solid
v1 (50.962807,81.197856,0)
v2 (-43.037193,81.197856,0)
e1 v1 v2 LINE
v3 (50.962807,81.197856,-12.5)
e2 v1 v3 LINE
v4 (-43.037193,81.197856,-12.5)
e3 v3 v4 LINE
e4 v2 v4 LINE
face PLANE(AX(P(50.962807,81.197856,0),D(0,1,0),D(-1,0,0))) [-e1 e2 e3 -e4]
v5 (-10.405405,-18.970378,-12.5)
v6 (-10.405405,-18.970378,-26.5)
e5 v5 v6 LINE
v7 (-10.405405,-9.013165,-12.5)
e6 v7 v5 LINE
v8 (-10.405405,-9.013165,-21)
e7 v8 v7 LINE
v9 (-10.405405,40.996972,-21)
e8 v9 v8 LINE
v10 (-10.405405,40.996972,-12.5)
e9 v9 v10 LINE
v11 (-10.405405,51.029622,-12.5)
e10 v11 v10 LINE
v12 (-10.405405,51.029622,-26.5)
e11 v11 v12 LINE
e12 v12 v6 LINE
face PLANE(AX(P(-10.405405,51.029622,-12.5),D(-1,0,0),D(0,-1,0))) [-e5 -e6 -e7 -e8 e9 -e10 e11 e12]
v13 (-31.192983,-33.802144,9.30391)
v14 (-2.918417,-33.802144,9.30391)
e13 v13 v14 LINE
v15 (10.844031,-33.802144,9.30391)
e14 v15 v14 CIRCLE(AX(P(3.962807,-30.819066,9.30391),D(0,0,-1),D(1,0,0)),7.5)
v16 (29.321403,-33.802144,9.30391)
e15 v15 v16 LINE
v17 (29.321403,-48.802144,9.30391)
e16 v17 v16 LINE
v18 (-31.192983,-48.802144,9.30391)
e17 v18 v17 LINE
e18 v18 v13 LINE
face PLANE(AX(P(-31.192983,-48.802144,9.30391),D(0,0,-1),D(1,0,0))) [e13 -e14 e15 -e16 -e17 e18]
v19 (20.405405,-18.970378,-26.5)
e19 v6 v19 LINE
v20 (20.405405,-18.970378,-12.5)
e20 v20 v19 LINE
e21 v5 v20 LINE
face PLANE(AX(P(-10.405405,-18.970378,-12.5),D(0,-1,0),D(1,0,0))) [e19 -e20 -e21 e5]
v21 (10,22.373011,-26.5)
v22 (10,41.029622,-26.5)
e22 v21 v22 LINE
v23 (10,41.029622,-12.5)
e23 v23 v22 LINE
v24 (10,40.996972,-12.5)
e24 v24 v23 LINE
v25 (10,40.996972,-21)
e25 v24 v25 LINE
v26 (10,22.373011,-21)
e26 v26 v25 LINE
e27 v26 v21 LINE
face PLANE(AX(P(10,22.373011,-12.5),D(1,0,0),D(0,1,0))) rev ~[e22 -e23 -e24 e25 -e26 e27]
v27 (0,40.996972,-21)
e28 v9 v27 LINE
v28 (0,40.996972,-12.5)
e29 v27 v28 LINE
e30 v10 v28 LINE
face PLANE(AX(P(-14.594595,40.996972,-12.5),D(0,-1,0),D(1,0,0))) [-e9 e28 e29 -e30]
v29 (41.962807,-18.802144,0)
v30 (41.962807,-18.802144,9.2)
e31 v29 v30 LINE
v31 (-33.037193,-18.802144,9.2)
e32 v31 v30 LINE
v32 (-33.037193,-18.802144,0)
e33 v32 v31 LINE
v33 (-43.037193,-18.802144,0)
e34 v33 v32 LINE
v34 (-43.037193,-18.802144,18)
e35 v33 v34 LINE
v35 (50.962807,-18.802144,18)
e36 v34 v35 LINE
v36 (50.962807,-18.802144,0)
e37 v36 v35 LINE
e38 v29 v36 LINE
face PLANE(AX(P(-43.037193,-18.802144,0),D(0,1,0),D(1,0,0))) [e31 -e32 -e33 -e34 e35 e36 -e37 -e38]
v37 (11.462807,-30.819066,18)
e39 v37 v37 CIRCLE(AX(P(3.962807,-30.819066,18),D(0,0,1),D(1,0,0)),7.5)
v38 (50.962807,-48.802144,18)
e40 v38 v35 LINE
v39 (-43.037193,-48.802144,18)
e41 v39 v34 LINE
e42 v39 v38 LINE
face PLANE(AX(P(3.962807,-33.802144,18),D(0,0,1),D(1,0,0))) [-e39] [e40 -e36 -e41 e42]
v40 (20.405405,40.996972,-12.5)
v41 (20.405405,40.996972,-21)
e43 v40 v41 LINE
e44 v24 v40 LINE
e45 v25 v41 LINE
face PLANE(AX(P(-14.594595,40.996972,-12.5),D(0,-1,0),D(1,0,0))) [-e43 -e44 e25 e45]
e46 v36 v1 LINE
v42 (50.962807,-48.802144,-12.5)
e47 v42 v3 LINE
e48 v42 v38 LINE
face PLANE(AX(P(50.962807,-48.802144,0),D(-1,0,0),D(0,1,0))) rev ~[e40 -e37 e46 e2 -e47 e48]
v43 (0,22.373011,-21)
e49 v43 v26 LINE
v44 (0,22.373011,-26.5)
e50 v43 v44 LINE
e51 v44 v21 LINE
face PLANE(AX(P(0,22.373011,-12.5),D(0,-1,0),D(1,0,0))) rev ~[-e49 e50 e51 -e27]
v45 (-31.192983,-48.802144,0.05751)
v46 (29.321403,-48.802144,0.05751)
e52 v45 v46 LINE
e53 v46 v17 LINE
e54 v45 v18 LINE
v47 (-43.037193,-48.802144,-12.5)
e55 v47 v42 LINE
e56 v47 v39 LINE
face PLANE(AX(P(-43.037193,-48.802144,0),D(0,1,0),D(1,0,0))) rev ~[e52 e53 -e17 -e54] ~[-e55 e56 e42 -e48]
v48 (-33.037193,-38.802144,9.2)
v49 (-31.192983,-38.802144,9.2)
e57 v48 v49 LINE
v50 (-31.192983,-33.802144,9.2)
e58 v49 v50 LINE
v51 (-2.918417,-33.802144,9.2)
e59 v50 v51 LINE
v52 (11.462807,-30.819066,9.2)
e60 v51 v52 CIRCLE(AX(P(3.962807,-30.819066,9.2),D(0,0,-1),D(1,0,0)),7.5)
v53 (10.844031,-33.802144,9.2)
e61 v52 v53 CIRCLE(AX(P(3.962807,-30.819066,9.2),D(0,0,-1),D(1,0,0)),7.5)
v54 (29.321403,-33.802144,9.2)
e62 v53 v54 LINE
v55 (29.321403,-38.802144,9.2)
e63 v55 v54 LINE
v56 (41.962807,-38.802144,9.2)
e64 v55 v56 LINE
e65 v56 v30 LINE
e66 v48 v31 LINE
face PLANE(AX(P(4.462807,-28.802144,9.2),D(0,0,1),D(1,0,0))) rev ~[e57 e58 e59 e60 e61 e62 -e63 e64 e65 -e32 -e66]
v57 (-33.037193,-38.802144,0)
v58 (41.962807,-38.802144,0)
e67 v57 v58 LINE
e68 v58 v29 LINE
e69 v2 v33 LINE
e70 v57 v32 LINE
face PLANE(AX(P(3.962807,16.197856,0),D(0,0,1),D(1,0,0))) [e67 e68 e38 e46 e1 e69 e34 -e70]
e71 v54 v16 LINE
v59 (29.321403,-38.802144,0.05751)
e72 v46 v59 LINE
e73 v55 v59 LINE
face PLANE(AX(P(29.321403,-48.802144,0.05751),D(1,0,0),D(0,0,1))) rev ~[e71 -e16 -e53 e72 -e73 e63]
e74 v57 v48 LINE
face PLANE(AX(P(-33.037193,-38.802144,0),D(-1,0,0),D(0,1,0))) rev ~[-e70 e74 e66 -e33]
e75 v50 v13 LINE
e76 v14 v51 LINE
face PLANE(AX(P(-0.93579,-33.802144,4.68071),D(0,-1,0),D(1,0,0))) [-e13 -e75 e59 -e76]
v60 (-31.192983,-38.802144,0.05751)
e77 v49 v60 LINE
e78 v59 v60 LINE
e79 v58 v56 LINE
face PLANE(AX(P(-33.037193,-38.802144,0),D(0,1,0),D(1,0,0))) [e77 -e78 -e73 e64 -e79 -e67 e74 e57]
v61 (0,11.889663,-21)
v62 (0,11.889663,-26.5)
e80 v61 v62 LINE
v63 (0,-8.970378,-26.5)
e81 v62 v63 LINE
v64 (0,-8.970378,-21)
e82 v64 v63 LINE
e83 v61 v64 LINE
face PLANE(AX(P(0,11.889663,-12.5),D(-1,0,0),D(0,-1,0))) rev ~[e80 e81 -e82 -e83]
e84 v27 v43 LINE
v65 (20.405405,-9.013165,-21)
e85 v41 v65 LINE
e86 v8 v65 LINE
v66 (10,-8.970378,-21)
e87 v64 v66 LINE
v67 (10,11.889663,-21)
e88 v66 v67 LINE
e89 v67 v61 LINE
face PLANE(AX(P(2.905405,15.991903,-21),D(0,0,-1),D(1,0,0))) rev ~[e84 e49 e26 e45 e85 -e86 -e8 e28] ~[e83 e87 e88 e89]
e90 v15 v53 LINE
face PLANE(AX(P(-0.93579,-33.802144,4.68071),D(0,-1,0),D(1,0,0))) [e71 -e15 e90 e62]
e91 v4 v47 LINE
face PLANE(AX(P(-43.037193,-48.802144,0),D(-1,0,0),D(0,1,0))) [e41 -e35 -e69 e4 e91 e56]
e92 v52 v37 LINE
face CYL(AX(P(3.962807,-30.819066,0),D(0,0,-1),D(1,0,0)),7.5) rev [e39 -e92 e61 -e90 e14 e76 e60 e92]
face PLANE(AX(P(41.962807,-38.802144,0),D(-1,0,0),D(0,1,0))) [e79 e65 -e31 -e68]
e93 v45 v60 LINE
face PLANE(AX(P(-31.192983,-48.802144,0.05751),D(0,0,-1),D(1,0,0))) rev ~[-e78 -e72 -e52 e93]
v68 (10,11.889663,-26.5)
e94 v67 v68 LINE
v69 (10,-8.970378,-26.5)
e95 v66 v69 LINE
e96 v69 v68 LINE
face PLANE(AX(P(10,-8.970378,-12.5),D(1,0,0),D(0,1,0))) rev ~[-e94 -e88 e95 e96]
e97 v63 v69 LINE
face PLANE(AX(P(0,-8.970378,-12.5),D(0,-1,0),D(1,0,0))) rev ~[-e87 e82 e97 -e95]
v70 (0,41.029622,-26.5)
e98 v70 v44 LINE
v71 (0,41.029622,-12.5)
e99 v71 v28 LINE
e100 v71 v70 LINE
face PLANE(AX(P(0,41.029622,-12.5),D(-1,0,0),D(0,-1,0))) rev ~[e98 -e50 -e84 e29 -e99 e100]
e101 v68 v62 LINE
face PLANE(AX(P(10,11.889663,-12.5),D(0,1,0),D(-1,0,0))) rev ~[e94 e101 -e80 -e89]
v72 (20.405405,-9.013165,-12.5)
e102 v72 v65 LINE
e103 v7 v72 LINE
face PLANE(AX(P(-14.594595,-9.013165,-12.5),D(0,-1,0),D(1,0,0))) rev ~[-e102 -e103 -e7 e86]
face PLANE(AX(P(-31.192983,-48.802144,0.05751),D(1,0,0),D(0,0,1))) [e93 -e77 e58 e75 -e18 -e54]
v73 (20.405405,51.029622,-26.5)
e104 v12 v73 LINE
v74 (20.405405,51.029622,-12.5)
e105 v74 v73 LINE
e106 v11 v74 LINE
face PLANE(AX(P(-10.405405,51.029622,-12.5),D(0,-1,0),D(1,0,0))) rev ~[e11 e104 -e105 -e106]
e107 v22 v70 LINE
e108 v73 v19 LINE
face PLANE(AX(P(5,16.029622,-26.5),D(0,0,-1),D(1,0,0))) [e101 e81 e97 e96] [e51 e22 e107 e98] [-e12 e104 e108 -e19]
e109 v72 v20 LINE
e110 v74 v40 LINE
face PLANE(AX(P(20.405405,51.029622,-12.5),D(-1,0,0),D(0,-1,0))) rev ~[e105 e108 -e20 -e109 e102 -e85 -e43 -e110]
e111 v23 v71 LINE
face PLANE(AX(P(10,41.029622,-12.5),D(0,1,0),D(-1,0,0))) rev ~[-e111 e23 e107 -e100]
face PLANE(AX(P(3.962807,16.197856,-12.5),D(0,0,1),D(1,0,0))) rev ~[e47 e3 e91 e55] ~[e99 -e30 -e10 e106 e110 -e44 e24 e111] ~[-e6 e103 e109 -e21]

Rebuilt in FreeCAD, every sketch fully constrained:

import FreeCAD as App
import Part
import Sketcher
from FreeCAD import Vector

doc = App.newDocument("Part")
body = doc.addObject("PartDesign::Body", "Body")

# Sketch on XY plane
sketch1 = body.newObject("Sketcher::SketchObject", "Sketch")
sketch1.AttachmentSupport = (doc.getObject("XY_Plane"), [""])
sketch1.MapMode = "FlatFace"
sketch1.addGeometry([
    Part.LineSegment(Vector(51, 81, 0), Vector(-43, 81, 0)),
    Part.LineSegment(Vector(-43, 81, 0), Vector(-43, -49, 0)),
    Part.LineSegment(Vector(-43, -49, 0), Vector(51, -49, 0)),
    Part.LineSegment(Vector(51, -49, 0), Vector(51, 81, 0)),
], False)
sketch1.addConstraint([
    Sketcher.Constraint("Coincident", 0, 2, 1, 1),
    Sketcher.Constraint("Coincident", 1, 2, 2, 1),
    Sketcher.Constraint("Coincident", 2, 2, 3, 1),
    Sketcher.Constraint("Coincident", 3, 2, 0, 1),
    Sketcher.Constraint("Horizontal", 0),
    Sketcher.Constraint("Vertical", 1),
    Sketcher.Constraint("Horizontal", 2),
    Sketcher.Constraint("Vertical", 3),
    Sketcher.Constraint("DistanceX", 0, 2, 0, 1, 94.0),
    Sketcher.Constraint("DistanceY", 1, 2, 1, 1, 130.0),
    Sketcher.Constraint("DistanceX", 0, 2, -1, 1, 43.037193),
    Sketcher.Constraint("DistanceY", -1, 1, 0, 2, 81.197856),
])
pad1 = body.newObject("PartDesign::Pad", "Pad")
pad1.Profile = sketch1
pad1.Length = 12.5
pad1.Reversed = True

# Sketch on XY plane
sketch2 = body.newObject("Sketcher::SketchObject", "Sketch001")
sketch2.AttachmentSupport = (doc.getObject("XY_Plane"), [""])
sketch2.MapMode = "FlatFace"
sketch2.addGeometry([
    Part.LineSegment(Vector(-43, -19, 0), Vector(-43, -49, 0)),  # 0
    Part.LineSegment(Vector(-43, -49, 0), Vector(51, -49, 0)),  # 1
    Part.LineSegment(Vector(51, -49, 0), Vector(51, -19, 0)),  # 2
    Part.LineSegment(Vector(51, -19, 0), Vector(-43, -19, 0)),  # 3
    Part.Circle(Vector(4, -31, 0), Vector(0, 0, 1), 8),  # 4
], False)
sketch2.addConstraint([
    Sketcher.Constraint("Coincident", 0, 2, 1, 1),
    Sketcher.Constraint("Coincident", 1, 2, 2, 1),
    Sketcher.Constraint("Coincident", 2, 2, 3, 1),
    Sketcher.Constraint("Coincident", 3, 2, 0, 1),
    Sketcher.Constraint("Vertical", 0),
    Sketcher.Constraint("Horizontal", 1),
    Sketcher.Constraint("Vertical", 2),
    Sketcher.Constraint("Horizontal", 3),
    Sketcher.Constraint("Diameter", 4, 15.0),
    Sketcher.Constraint("DistanceX", 1, 1, 1, 2, 94.0),
    Sketcher.Constraint("DistanceY", 0, 2, 0, 1, 30.0),
    Sketcher.Constraint("DistanceX", 0, 2, 4, 3, 47.0),
    Sketcher.Constraint("DistanceX", -1, 1, 4, 3, 3.962807),
    Sketcher.Constraint("DistanceY", 4, 3, -1, 1, 30.819066),
    Sketcher.Constraint("DistanceY", 0, 2, -1, 1, 48.802144),
])
pad2 = body.newObject("PartDesign::Pad", "Pad001")
pad2.Profile = sketch2
pad2.Length = 18

# Sketch on XY plane
sketch3 = body.newObject("Sketcher::SketchObject", "Sketch002")
sketch3.AttachmentSupport = (doc.getObject("XY_Plane"), [""])
sketch3.MapMode = "FlatFace"
sketch3.addGeometry([
    Part.LineSegment(Vector(-33, -19, 0), Vector(-33, -39, 0)),
    Part.LineSegment(Vector(-33, -39, 0), Vector(42, -39, 0)),
    Part.LineSegment(Vector(42, -39, 0), Vector(42, -19, 0)),
    Part.LineSegment(Vector(42, -19, 0), Vector(-33, -19, 0)),
], False)
sketch3.addConstraint([
    Sketcher.Constraint("Coincident", 0, 2, 1, 1),
    Sketcher.Constraint("Coincident", 1, 2, 2, 1),
    Sketcher.Constraint("Coincident", 2, 2, 3, 1),
    Sketcher.Constraint("Coincident", 3, 2, 0, 1),
    Sketcher.Constraint("Vertical", 0),
    Sketcher.Constraint("Horizontal", 1),
    Sketcher.Constraint("Vertical", 2),
    Sketcher.Constraint("Horizontal", 3),
    Sketcher.Constraint("DistanceX", 1, 1, 1, 2, 75.0),
    Sketcher.Constraint("DistanceY", 0, 2, 0, 1, 20.0),
    Sketcher.Constraint("DistanceX", 0, 2, -1, 1, 33.037193),
    Sketcher.Constraint("DistanceY", 0, 2, -1, 1, 38.802144),
])
pocket1 = body.newObject("PartDesign::Pocket", "Pocket")
pocket1.Profile = sketch3
pocket1.Length = 9.2
pocket1.Reversed = True

# Sketch on XY plane
sketch4 = body.newObject("Sketcher::SketchObject", "Sketch003")
sketch4.AttachmentSupport = (doc.getObject("XY_Plane"), [""])
sketch4.MapMode = "FlatFace"
sketch4.AttachmentOffset = App.Placement(Vector(0, 0, -12.5), App.Rotation())
sketch4.addGeometry([
    Part.LineSegment(Vector(-10, -19, 0), Vector(-10, 51, 0)),  # 0
    Part.LineSegment(Vector(-10, 51, 0), Vector(20, 51, 0)),  # 1
    Part.LineSegment(Vector(20, 51, 0), Vector(20, -19, 0)),  # 2
    Part.LineSegment(Vector(20, -19, 0), Vector(-10, -19, 0)),  # 3
    Part.LineSegment(Vector(10, 22, 0), Vector(10, 41, 0)),  # 4
    Part.LineSegment(Vector(10, 41, 0), Vector(0, 41, 0)),  # 5
    Part.LineSegment(Vector(0, 41, 0), Vector(0, 22, 0)),  # 6
    Part.LineSegment(Vector(0, 22, 0), Vector(10, 22, 0)),  # 7
    Part.LineSegment(Vector(0, 12, 0), Vector(0, -9, 0)),  # 8
    Part.LineSegment(Vector(0, -9, 0), Vector(10, -9, 0)),  # 9
    Part.LineSegment(Vector(10, -9, 0), Vector(10, 12, 0)),  # 10
    Part.LineSegment(Vector(10, 12, 0), Vector(0, 12, 0)),  # 11
], False)
sketch4.addConstraint([
    Sketcher.Constraint("Coincident", 0, 2, 1, 1),
    Sketcher.Constraint("Coincident", 1, 2, 2, 1),
    Sketcher.Constraint("Coincident", 2, 2, 3, 1),
    Sketcher.Constraint("Coincident", 3, 2, 0, 1),
    Sketcher.Constraint("Coincident", 4, 2, 5, 1),
    Sketcher.Constraint("Coincident", 5, 2, 6, 1),
    Sketcher.Constraint("Coincident", 6, 2, 7, 1),
    Sketcher.Constraint("Coincident", 7, 2, 4, 1),
    Sketcher.Constraint("Coincident", 8, 2, 9, 1),
    Sketcher.Constraint("Coincident", 9, 2, 10, 1),
    Sketcher.Constraint("Coincident", 10, 2, 11, 1),
    Sketcher.Constraint("Coincident", 11, 2, 8, 1),
    Sketcher.Constraint("Vertical", 0),
    Sketcher.Constraint("Horizontal", 1),
    Sketcher.Constraint("Vertical", 2),
    Sketcher.Constraint("Horizontal", 3),
    Sketcher.Constraint("Vertical", 4),
    Sketcher.Constraint("Horizontal", 5),
    Sketcher.Constraint("Vertical", 6),
    Sketcher.Constraint("Horizontal", 7),
    Sketcher.Constraint("Vertical", 8),
    Sketcher.Constraint("Horizontal", 9),
    Sketcher.Constraint("Vertical", 10),
    Sketcher.Constraint("Horizontal", 11),
    Sketcher.Constraint("PointOnObject", 5, 2, -2),
    Sketcher.Constraint("PointOnObject", 8, 2, -2),
    Sketcher.Constraint("Vertical", 7, 2, 9, 2),
    Sketcher.Constraint("DistanceX", 5, 2, 5, 1, 10.0),
    Sketcher.Constraint("DistanceY", 0, 1, 0, 2, 70.0),
    Sketcher.Constraint("DistanceY", 4, 2, 1, 2, 10.0),
    Sketcher.Constraint("DistanceY", 3, 2, 8, 2, 10.0),
    Sketcher.Constraint("DistanceX", 1, 1, 1, 2, 30.81081),
    Sketcher.Constraint("DistanceY", 4, 1, 4, 2, 18.656611),
    Sketcher.Constraint("DistanceY", 8, 2, 8, 1, 20.860041),
    Sketcher.Constraint("DistanceY", 2, 2, -1, 1, 18.970378),
    Sketcher.Constraint("DistanceX", 0, 2, -1, 1, 10.405405),
])
pad3 = body.newObject("PartDesign::Pad", "Pad002")
pad3.Profile = sketch4
pad3.Length = 14
pad3.Reversed = True

# Sketch on XY plane
sketch5 = body.newObject("Sketcher::SketchObject", "Sketch004")
sketch5.AttachmentSupport = (doc.getObject("XY_Plane"), [""])
sketch5.MapMode = "FlatFace"
sketch5.AttachmentOffset = App.Placement(Vector(0, 0, -12.5), App.Rotation())
sketch5.addGeometry([
    Part.LineSegment(Vector(-15, -9, 0), Vector(-15, 41, 0)),
    Part.LineSegment(Vector(-15, 41, 0), Vector(20, 41, 0)),
    Part.LineSegment(Vector(20, 41, 0), Vector(20, -9, 0)),
    Part.LineSegment(Vector(20, -9, 0), Vector(-15, -9, 0)),
], False)
sketch5.addConstraint([
    Sketcher.Constraint("Coincident", 0, 2, 1, 1),
    Sketcher.Constraint("Coincident", 1, 2, 2, 1),
    Sketcher.Constraint("Coincident", 2, 2, 3, 1),
    Sketcher.Constraint("Coincident", 3, 2, 0, 1),
    Sketcher.Constraint("Vertical", 0),
    Sketcher.Constraint("Horizontal", 1),
    Sketcher.Constraint("Vertical", 2),
    Sketcher.Constraint("Horizontal", 3),
    Sketcher.Constraint("DistanceX", 1, 1, 1, 2, 35.0),
    Sketcher.Constraint("DistanceY", 0, 1, 0, 2, 50.010137),
    Sketcher.Constraint("DistanceY", -1, 1, 0, 2, 40.996972),
    Sketcher.Constraint("DistanceX", 0, 2, -1, 1, 14.594595),
])
pocket2 = body.newObject("PartDesign::Pocket", "Pocket001")
pocket2.Profile = sketch5
pocket2.Length = 8.5

# Sketch on XZ plane
sketch6 = body.newObject("Sketcher::SketchObject", "Sketch005")
sketch6.AttachmentSupport = (doc.getObject("XZ_Plane"), [""])
sketch6.MapMode = "FlatFace"
sketch6.AttachmentOffset = App.Placement(Vector(0, 0, 48.802144), App.Rotation())
sketch6.addGeometry([
    Part.LineSegment(Vector(-31, 9, 0), Vector(-31, 0, 0)),
    Part.LineSegment(Vector(-31, 0, 0), Vector(29, 0, 0)),
    Part.LineSegment(Vector(29, 0, 0), Vector(29, 9, 0)),
    Part.LineSegment(Vector(29, 9, 0), Vector(-31, 9, 0)),
], False)
sketch6.addConstraint([
    Sketcher.Constraint("Coincident", 0, 2, 1, 1),
    Sketcher.Constraint("Coincident", 1, 2, 2, 1),
    Sketcher.Constraint("Coincident", 2, 2, 3, 1),
    Sketcher.Constraint("Coincident", 3, 2, 0, 1),
    Sketcher.Constraint("Vertical", 0),
    Sketcher.Constraint("Horizontal", 1),
    Sketcher.Constraint("Vertical", 2),
    Sketcher.Constraint("Horizontal", 3),
    Sketcher.Constraint("DistanceY", 0, 2, 0, 1, 9.2464),
    Sketcher.Constraint("DistanceX", 1, 1, 1, 2, 60.514386),
    Sketcher.Constraint("DistanceY", -1, 1, 0, 2, 0.05751),
    Sketcher.Constraint("DistanceX", 0, 2, -1, 1, 31.192983),
])
pocket3 = body.newObject("PartDesign::Pocket", "Pocket002")
pocket3.Profile = sketch6
pocket3.Length = 15

doc.recompute()
